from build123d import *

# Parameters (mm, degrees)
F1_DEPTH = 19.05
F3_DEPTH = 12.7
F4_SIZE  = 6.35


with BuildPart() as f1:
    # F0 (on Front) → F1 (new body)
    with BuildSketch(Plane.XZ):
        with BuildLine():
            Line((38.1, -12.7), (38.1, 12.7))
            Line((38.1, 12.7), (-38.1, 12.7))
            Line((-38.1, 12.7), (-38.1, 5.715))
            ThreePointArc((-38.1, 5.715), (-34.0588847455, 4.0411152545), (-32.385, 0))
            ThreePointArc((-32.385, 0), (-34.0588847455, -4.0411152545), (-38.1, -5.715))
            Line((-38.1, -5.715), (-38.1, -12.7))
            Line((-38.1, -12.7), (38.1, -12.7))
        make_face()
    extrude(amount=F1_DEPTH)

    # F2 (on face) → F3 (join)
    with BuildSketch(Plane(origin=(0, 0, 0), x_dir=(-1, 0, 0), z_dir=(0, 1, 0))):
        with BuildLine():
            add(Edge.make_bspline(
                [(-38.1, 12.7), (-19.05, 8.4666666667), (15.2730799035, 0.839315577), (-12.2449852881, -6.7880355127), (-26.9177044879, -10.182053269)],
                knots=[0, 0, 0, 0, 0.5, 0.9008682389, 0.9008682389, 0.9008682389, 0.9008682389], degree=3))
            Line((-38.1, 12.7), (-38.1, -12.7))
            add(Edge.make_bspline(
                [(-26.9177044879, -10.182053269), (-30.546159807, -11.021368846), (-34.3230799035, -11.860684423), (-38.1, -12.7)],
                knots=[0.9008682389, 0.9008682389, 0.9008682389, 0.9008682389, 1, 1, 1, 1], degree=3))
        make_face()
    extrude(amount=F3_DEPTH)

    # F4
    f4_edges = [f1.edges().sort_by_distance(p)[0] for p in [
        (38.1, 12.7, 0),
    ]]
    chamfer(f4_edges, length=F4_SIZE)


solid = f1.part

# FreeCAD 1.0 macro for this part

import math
import FreeCAD as App
import Part
import Sketcher
Q = App.Units.Quantity


def edges_at(feature, points):
    """Names of the edges that pass closest to the given points."""
    edges = feature.Shape.Edges
    near = lambda p: min(range(len(edges)), key=lambda i: edges[i].distToShape(Part.Vertex(*p))[0])
    return sorted({f"Edge{near(p) + 1}" for p in points})

doc = App.newDocument("Part")
body = doc.addObject("PartDesign::Body", "Body")

sketch1 = body.newObject("Sketcher::SketchObject", "Sketch")
sketch1.AttachmentSupport = (doc.getObject("XZ_Plane"), [""])
sketch1.MapMode = "FlatFace"
sketch1.addGeometry([
    Part.LineSegment(App.Vector(38.1, -12.7, 0), App.Vector(38.1, 12.7, 0)),
    Part.LineSegment(App.Vector(38.1, 12.7, 0), App.Vector(-38.1, 12.7, 0)),
    Part.LineSegment(App.Vector(-38.1, 12.7, 0), App.Vector(-38.1, 5.715, 0)),
    Part.ArcOfCircle(Part.Circle(App.Vector(-38.1, 0, 0), App.Vector(0, 0, 1), 5.715), math.radians(0), math.radians(90)),
    Part.ArcOfCircle(Part.Circle(App.Vector(-38.1, 0, 0), App.Vector(0, 0, 1), 5.715), math.radians(-90), math.radians(0)),
    Part.LineSegment(App.Vector(-38.1, -5.715, 0), App.Vector(-38.1, -12.7, 0)),
    Part.LineSegment(App.Vector(-38.1, -12.7, 0), App.Vector(38.1, -12.7, 0)),
], False)
sketch1.addConstraint([
    Sketcher.Constraint("Coincident", 0, 2, 1, 1),
    Sketcher.Constraint("Coincident", 1, 2, 2, 1),
    Sketcher.Constraint("Coincident", 2, 2, 3, 2),
    Sketcher.Constraint("Tangent", 3, 1, 4, 2),
    Sketcher.Constraint("Coincident", 4, 1, 5, 1),
    Sketcher.Constraint("Coincident", 5, 2, 6, 1),
    Sketcher.Constraint("Coincident", 6, 2, 0, 1),
    Sketcher.Constraint("Vertical", 0),
    Sketcher.Constraint("Horizontal", 1),
    Sketcher.Constraint("Vertical", 2),
    Sketcher.Constraint("Vertical", 5),
    Sketcher.Constraint("Horizontal", 6),
    Sketcher.Constraint("Equal", 3, 4),
    Sketcher.Constraint("Symmetric", 0, 2, 5, 2, -1, 1),
    Sketcher.Constraint("Symmetric", 2, 2, 4, 1, -1),
    Sketcher.Constraint("PointOnObject", 3, 1, -1),
    Sketcher.Constraint("Vertical", 4, 3, 1, 2),
    Sketcher.Constraint("DistanceX", 1, 2, 1, 1, Q("3 in")),
    Sketcher.Constraint("DistanceY", 0, 1, 0, 2, Q("1 in")),
    Sketcher.Constraint("Radius", 3, Q("0.225 in")),
])
pad1 = body.newObject("PartDesign::Pad", "Pad")
pad1.Profile = sketch1
pad1.Length = Q("0.75 in")

sketch2 = body.newObject("Sketcher::SketchObject", "Sketch001")
sketch2.AttachmentSupport = (doc.getObject("XZ_Plane"), [""])
sketch2.MapMode = "FlatFace"
sketch2.addGeometry([
    Part.BSplineCurve([App.Vector(38.1, 12.7, 0), App.Vector(19.05, 8.466667, 0), App.Vector(-15.27308, 0.839316, 0), App.Vector(12.244985, -6.788036, 0), App.Vector(26.917704, -10.182053, 0)], [4, 1, 4], [0, 0.5, 0.900868239], False, 3, [1, 1, 1, 1, 1], False),
    Part.LineSegment(App.Vector(38.1, 12.7, 0), App.Vector(38.1, -12.7, 0)),
    Part.BSplineCurve([App.Vector(26.917704, -10.182053, 0), App.Vector(30.54616, -11.021369, 0), App.Vector(34.32308, -11.860684, 0), App.Vector(38.1, -12.7, 0)], [4, 4], [0.900868239, 1], False, 3, [1, 1, 1, 1], False),
], False)
sketch2.addConstraint([
    Sketcher.Constraint("Block", 0),
    Sketcher.Constraint("Block", 2),
    Sketcher.Constraint("Coincident", 0, 1, 1, 1),
    Sketcher.Constraint("Coincident", 1, 2, 2, 2),
])
pad2 = body.newObject("PartDesign::Pad", "Pad001")
pad2.Profile = sketch2
pad2.Length = Q("0.5 in")
pad2.Reversed = True
doc.recompute()

chamfer = body.newObject("PartDesign::Chamfer", "Chamfer")
chamfer.Base = (pad2, edges_at(pad2, [(38.1, 12.7, 0)]))
chamfer.Size = Q("0.25 in")

doc.recompute()
